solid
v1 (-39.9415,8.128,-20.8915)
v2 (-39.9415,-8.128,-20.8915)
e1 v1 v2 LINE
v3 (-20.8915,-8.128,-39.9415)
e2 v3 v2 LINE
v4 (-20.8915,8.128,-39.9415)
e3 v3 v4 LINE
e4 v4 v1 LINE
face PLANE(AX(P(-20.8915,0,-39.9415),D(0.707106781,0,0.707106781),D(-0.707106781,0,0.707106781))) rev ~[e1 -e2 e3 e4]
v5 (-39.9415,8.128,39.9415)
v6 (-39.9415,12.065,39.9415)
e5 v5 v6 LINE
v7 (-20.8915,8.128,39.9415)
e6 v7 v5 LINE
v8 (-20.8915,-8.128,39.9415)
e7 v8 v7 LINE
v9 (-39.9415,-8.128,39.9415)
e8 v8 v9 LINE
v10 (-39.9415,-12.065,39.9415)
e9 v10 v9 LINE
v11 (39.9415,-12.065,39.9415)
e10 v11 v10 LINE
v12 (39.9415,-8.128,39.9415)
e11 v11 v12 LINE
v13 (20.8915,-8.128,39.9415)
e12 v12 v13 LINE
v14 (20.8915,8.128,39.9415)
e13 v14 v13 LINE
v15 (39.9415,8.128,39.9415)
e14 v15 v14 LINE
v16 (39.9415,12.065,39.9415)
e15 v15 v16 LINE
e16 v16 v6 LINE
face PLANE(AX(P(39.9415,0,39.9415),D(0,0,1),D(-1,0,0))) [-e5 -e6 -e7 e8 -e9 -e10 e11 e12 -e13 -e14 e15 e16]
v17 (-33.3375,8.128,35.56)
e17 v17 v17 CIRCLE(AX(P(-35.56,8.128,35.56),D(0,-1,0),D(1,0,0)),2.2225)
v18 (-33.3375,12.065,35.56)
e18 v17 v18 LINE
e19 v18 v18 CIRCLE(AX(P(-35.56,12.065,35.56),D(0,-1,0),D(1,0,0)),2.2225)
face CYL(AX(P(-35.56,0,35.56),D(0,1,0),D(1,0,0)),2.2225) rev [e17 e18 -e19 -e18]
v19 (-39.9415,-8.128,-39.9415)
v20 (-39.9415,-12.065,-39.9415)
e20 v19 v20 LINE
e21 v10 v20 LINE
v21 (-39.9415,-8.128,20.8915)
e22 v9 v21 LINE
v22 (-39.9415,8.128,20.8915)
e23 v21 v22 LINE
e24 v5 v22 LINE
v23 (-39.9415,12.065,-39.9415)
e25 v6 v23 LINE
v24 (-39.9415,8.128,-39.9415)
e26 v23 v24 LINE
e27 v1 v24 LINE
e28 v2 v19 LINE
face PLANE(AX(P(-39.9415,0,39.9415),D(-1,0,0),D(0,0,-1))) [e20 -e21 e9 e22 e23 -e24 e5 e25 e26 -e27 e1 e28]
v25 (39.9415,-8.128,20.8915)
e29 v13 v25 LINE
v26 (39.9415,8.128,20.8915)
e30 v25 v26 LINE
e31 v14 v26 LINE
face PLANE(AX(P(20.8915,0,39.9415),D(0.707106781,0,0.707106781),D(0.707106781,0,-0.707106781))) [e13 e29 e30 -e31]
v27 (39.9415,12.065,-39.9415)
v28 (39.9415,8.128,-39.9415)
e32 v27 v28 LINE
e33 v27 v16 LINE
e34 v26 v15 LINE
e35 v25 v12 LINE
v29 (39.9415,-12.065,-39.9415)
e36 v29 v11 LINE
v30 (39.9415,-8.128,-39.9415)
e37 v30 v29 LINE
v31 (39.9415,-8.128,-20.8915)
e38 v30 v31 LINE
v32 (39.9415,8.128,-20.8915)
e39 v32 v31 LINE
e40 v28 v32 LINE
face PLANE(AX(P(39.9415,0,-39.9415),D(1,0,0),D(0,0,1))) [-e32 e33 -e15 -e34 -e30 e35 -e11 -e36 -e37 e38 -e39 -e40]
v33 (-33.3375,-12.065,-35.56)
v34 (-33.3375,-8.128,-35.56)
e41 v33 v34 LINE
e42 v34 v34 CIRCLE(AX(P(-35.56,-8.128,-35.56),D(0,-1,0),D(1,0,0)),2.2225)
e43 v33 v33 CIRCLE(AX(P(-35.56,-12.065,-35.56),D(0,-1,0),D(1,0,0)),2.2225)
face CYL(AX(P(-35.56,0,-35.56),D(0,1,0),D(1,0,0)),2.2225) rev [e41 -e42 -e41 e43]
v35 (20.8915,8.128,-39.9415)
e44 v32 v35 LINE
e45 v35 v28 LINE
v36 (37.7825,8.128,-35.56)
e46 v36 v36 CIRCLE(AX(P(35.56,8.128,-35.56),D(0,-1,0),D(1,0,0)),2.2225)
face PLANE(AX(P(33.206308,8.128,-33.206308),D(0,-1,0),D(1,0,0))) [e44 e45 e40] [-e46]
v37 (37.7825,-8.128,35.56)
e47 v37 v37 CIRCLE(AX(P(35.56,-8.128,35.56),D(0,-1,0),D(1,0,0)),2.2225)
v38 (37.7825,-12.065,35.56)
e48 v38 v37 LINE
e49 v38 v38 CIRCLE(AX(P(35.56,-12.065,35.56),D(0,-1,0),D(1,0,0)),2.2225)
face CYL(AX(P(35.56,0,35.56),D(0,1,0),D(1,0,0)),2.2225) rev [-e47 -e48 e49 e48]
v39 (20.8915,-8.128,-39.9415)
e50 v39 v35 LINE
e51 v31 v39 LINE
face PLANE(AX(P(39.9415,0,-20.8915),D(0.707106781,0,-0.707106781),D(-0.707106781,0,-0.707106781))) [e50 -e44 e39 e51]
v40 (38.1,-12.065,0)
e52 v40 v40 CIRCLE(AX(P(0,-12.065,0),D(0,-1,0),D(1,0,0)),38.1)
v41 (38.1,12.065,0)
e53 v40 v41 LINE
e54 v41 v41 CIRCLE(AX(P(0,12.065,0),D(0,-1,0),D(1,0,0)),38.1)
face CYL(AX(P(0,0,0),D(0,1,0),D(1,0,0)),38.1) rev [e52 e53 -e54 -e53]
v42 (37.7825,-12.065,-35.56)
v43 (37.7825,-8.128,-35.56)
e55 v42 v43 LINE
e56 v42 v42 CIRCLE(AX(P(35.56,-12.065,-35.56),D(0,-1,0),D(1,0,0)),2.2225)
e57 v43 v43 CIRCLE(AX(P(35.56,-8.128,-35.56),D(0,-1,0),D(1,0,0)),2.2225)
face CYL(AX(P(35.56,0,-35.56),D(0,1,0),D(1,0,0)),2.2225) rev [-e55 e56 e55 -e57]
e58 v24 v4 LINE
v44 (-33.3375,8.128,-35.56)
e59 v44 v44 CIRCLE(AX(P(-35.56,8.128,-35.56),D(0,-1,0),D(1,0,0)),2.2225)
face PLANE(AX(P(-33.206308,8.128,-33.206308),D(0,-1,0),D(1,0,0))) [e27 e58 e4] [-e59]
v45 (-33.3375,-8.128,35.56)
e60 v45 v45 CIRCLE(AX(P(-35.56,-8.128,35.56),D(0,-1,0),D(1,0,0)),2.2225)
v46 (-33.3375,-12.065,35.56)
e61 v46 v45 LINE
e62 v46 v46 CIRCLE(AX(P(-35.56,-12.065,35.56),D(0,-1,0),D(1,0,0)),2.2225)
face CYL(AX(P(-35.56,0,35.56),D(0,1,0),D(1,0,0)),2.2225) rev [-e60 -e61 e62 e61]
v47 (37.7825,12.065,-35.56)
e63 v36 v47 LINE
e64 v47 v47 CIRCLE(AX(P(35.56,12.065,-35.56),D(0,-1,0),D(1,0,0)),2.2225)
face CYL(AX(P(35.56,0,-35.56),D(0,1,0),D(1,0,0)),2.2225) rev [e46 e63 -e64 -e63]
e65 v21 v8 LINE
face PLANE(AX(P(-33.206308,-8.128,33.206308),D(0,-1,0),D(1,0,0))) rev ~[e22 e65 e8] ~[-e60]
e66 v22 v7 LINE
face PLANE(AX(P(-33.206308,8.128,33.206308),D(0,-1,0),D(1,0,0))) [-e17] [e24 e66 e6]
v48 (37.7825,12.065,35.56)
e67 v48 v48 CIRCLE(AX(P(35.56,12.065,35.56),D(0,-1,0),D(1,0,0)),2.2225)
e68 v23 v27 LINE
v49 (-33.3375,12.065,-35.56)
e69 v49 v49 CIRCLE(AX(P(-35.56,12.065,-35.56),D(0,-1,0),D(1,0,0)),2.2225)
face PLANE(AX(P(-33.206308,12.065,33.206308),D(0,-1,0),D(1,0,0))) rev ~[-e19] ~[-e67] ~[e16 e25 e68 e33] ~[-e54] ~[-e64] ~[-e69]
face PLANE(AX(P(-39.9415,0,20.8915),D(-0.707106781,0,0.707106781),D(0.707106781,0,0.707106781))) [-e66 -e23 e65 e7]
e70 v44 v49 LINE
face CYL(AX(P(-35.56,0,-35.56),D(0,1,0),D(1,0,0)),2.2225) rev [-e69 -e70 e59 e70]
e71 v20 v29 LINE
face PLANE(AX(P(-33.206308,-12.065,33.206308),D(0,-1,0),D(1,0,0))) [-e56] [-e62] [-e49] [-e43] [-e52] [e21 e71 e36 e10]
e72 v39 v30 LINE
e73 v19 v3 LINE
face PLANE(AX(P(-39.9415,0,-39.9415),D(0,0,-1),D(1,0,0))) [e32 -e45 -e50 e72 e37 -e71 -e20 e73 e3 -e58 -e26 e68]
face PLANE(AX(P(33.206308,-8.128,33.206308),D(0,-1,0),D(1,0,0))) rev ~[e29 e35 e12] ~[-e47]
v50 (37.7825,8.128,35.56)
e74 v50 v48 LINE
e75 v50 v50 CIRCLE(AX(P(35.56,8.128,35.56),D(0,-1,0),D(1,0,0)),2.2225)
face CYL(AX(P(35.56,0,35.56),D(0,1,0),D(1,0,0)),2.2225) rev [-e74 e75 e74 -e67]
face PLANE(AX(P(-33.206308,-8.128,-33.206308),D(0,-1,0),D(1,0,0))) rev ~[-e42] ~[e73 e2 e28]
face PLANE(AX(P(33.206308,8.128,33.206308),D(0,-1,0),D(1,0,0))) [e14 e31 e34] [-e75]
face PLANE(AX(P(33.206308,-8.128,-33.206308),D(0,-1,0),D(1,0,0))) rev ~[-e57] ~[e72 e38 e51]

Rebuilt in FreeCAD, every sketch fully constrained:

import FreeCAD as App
import Part
import Sketcher
Q = App.Units.Quantity

doc = App.newDocument("Part")
body = doc.addObject("PartDesign::Body", "Body")

# Sketch on XZ plane
sketch1 = body.newObject("Sketcher::SketchObject", "Sketch")
sketch1.AttachmentSupport = (doc.getObject("XZ_Plane"), [""])
sketch1.MapMode = "FlatFace"
sketch1.addGeometry([
    Part.LineSegment(App.Vector(-39.9415, 39.9415, 0), App.Vector(-39.9415, -39.9415, 0)),  # 0
    Part.LineSegment(App.Vector(-39.9415, -39.9415, 0), App.Vector(39.9415, -39.9415, 0)),  # 1
    Part.LineSegment(App.Vector(39.9415, -39.9415, 0), App.Vector(39.9415, 39.9415, 0)),  # 2
    Part.LineSegment(App.Vector(39.9415, 39.9415, 0), App.Vector(-39.9415, 39.9415, 0)),  # 3
    Part.Circle(App.Vector(-35.56, -35.56, 0), App.Vector(0, 0, 1), 2.2225),  # 4
    Part.Circle(App.Vector(35.56, -35.56, 0), App.Vector(0, 0, 1), 2.2225),  # 5
    Part.Circle(App.Vector(-35.56, 35.56, 0), App.Vector(0, 0, 1), 2.2225),  # 6
    Part.Circle(App.Vector(0, 0, 0), App.Vector(0, 0, 1), 38.1),  # 7
    Part.Circle(App.Vector(35.56, 35.56, 0), App.Vector(0, 0, 1), 2.2225),  # 8
], False)
sketch1.addConstraint([
    Sketcher.Constraint("Coincident", 0, 2, 1, 1),
    Sketcher.Constraint("Coincident", 1, 2, 2, 1),
    Sketcher.Constraint("Coincident", 2, 2, 3, 1),
    Sketcher.Constraint("Coincident", 3, 2, 0, 1),
    Sketcher.Constraint("Vertical", 0),
    Sketcher.Constraint("Horizontal", 1),
    Sketcher.Constraint("Vertical", 2),
    Sketcher.Constraint("Horizontal", 3),
    Sketcher.Constraint("Coincident", 7, 3, -1, 1),
    Sketcher.Constraint("Equal", 4, 5),
    Sketcher.Constraint("Equal", 5, 6),
    Sketcher.Constraint("Equal", 6, 8),
    Sketcher.Constraint("Symmetric", 5, 3, 6, 3, -1, 1),
    Sketcher.Constraint("Symmetric", 4, 3, 8, 3, -1, 1),
    Sketcher.Constraint("Symmetric", 0, 2, 2, 2, -1, 1),
    Sketcher.Constraint("Symmetric", 4, 3, 5, 3, -2),
    Sketcher.Constraint("Equal", 3, 0),
    Sketcher.Constraint("Diameter", 7, Q("3 in")),
    Sketcher.Constraint("Diameter", 4, Q("0.175 in")),
    Sketcher.Constraint("DistanceX", 4, 3, -1, 1, Q("1.4 in")),
    Sketcher.Constraint("DistanceY", 4, 3, -1, 1, Q("1.4 in")),
    Sketcher.Constraint("DistanceX", 1, 1, 1, 2, Q("3.145 in")),
])
pad1 = body.newObject("PartDesign::Pad", "Pad")
pad1.Profile = sketch1
pad1.Length = Q("0.95 in")
pad1.Midplane = True

# Sketch on XZ plane
sketch2 = body.newObject("Sketcher::SketchObject", "Sketch001")
sketch2.AttachmentSupport = (doc.getObject("XZ_Plane"), [""])
sketch2.MapMode = "FlatFace"
sketch2.addGeometry([
    Part.LineSegment(App.Vector(-20.8915, 39.9415, 0), App.Vector(-39.9415, 39.9415, 0)),  # 0
    Part.LineSegment(App.Vector(-39.9415, 39.9415, 0), App.Vector(-39.9415, 20.8915, 0)),  # 1
    Part.LineSegment(App.Vector(-39.9415, 20.8915, 0), App.Vector(-20.8915, 39.9415, 0)),  # 2
    Part.Circle(App.Vector(-35.56, 35.56, 0), App.Vector(0, 0, 1), 2.2225),  # 3
    Part.LineSegment(App.Vector(39.9415, 39.9415, 0), App.Vector(20.8915, 39.9415, 0)),  # 4
    Part.LineSegment(App.Vector(20.8915, 39.9415, 0), App.Vector(39.9415, 20.8915, 0)),  # 5
    Part.LineSegment(App.Vector(39.9415, 20.8915, 0), App.Vector(39.9415, 39.9415, 0)),  # 6
    Part.Circle(App.Vector(35.56, 35.56, 0), App.Vector(0, 0, 1), 2.2225),  # 7
    Part.LineSegment(App.Vector(39.9415, -39.9415, 0), App.Vector(39.9415, -20.8915, 0)),  # 8
    Part.LineSegment(App.Vector(39.9415, -20.8915, 0), App.Vector(20.8915, -39.9415, 0)),  # 9
    Part.LineSegment(App.Vector(20.8915, -39.9415, 0), App.Vector(39.9415, -39.9415, 0)),  # 10
    Part.Circle(App.Vector(35.56, -35.56, 0), App.Vector(0, 0, 1), 2.2225),  # 11
    Part.LineSegment(App.Vector(-20.8915, -39.9415, 0), App.Vector(-39.9415, -20.8915, 0)),  # 12
    Part.LineSegment(App.Vector(-39.9415, -20.8915, 0), App.Vector(-39.9415, -39.9415, 0)),  # 13
    Part.LineSegment(App.Vector(-39.9415, -39.9415, 0), App.Vector(-20.8915, -39.9415, 0)),  # 14
    Part.Circle(App.Vector(-35.56, -35.56, 0), App.Vector(0, 0, 1), 2.2225),  # 15
], False)
sketch2.addConstraint([
    Sketcher.Constraint("Coincident", 0, 2, 1, 1),
    Sketcher.Constraint("Coincident", 1, 2, 2, 1),
    Sketcher.Constraint("Coincident", 2, 2, 0, 1),
    Sketcher.Constraint("Coincident", 4, 2, 5, 1),
    Sketcher.Constraint("Coincident", 5, 2, 6, 1),
    Sketcher.Constraint("Coincident", 6, 2, 4, 1),
    Sketcher.Constraint("Coincident", 8, 2, 9, 1),
    Sketcher.Constraint("Coincident", 9, 2, 10, 1),
    Sketcher.Constraint("Coincident", 10, 2, 8, 1),
    Sketcher.Constraint("Coincident", 12, 2, 13, 1),
    Sketcher.Constraint("Coincident", 13, 2, 14, 1),
    Sketcher.Constraint("Coincident", 14, 2, 12, 1),
    Sketcher.Constraint("Horizontal", 0),
    Sketcher.Constraint("Vertical", 1),
    Sketcher.Constraint("Horizontal", 4),
    Sketcher.Constraint("Vertical", 6),
    Sketcher.Constraint("Vertical", 8),
    Sketcher.Constraint("Horizontal", 10),
    Sketcher.Constraint("Vertical", 13),
    Sketcher.Constraint("Horizontal", 14),
    Sketcher.Constraint("Equal", 3, 7),
    Sketcher.Constraint("Equal", 7, 11),
    Sketcher.Constraint("Equal", 11, 15),
    Sketcher.Constraint("Symmetric", 3, 3, 11, 3, -1, 1),
    Sketcher.Constraint("Symmetric", 7, 3, 15, 3, -1, 1),
    Sketcher.Constraint("Symmetric", 1, 2, 8, 2, -1, 1),
    Sketcher.Constraint("Symmetric", 2, 2, 9, 2, -1, 1),
    Sketcher.Constraint("Symmetric", 5, 2, 12, 2, -1, 1),
    Sketcher.Constraint("Symmetric", 4, 2, 14, 2, -1, 1),
    Sketcher.Constraint("Symmetric", 3, 3, 7, 3, -2),
    Sketcher.Constraint("Symmetric", 2, 2, 4, 2, -2),
    Sketcher.Constraint("Symmetric", 1, 2, 5, 2, -2),
    Sketcher.Constraint("Perpendicular", 2, 5),
    Sketcher.Constraint("Diameter", 3, Q("0.175 in")),
    Sketcher.Constraint("DistanceX", 0, 2, 0, 1, Q("0.75 in")),
    Sketcher.Constraint("DistanceX", 3, 3, -1, 1, Q("1.4 in")),
    Sketcher.Constraint("DistanceY", -1, 1, 3, 3, Q("1.4 in")),
    Sketcher.Constraint("DistanceX", 2, 2, 4, 2, Q("1.645 in")),
    Sketcher.Constraint("DistanceY", 8, 2, 5, 2, Q("1.645 in")),
])
pocket1 = body.newObject("PartDesign::Pocket", "Pocket")
pocket1.Profile = sketch2
pocket1.Length = Q("0.64 in")
pocket1.Midplane = True

doc.recompute()
